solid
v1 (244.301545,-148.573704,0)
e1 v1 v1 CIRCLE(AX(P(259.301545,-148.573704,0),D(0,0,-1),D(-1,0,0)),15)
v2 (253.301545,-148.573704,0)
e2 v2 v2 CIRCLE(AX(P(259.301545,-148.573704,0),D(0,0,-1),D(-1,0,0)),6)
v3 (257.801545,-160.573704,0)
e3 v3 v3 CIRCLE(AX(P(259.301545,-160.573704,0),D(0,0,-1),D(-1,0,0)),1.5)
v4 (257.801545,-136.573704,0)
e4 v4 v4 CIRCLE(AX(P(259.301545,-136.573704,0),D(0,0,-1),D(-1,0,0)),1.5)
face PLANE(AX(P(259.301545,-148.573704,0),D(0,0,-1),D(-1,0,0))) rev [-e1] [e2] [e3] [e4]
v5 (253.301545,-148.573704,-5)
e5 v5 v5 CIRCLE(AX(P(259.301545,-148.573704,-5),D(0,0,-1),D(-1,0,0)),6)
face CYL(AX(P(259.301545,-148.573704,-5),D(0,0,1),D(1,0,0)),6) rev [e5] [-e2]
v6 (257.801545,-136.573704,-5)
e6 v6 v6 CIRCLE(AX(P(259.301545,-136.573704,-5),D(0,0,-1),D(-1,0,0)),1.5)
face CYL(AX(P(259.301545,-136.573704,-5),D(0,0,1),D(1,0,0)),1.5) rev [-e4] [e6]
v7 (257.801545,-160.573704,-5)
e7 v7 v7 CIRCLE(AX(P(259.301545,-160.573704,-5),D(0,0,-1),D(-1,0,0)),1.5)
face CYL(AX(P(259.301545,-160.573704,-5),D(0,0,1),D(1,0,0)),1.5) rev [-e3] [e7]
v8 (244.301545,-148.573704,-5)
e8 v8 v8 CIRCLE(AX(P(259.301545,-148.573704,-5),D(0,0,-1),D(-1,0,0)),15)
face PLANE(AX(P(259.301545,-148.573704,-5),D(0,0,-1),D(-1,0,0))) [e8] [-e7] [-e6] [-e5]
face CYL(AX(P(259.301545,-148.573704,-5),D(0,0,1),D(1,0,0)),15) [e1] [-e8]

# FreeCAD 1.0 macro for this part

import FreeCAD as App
import Part
import Sketcher

V = App.Vector

doc = App.newDocument("Part")
body = doc.addObject("PartDesign::Body", "Body")

# Sketch on XY plane
sketch1 = body.newObject("Sketcher::SketchObject", "Sketch")
sketch1.AttachmentSupport = (doc.getObject("XY_Plane"), [""])
sketch1.MapMode = "FlatFace"
sketch1.addGeometry([
    Part.Circle(V(259.3, -148.6, 0), V(0, 0, 1), 15),
    Part.Circle(V(259.3, -160.6, 0), V(0, 0, 1), 1.5),
    Part.Circle(V(259.3, -148.6, 0), V(0, 0, 1), 6),
    Part.Circle(V(259.3, -136.6, 0), V(0, 0, 1), 1.5),
], False)
sketch1.addConstraint([
    Sketcher.Constraint("Coincident", 2, 3, 0, 3),
    Sketcher.Constraint("Equal", 1, 3),
    Sketcher.Constraint("Vertical", 0, 3, 1, 3),
    Sketcher.Constraint("Vertical", 2, 3, 3, 3),
    Sketcher.Constraint("Diameter", 0, 30.0),
    Sketcher.Constraint("Diameter", 1, 3.0),
    Sketcher.Constraint("Diameter", 2, 12.0),
    Sketcher.Constraint("DistanceY", 1, 3, 0, 3, 12.0),
    Sketcher.Constraint("DistanceY", 0, 3, 3, 3, 12.0),
    Sketcher.Constraint("DistanceX", -1, 1, 0, 3, 259.301545),
    Sketcher.Constraint("DistanceY", 0, 3, -1, 1, 148.573704),
])
pad1 = body.newObject("PartDesign::Pad", "Pad")
pad1.Profile = sketch1
pad1.Length = 5
pad1.Reversed = True

doc.recompute()
